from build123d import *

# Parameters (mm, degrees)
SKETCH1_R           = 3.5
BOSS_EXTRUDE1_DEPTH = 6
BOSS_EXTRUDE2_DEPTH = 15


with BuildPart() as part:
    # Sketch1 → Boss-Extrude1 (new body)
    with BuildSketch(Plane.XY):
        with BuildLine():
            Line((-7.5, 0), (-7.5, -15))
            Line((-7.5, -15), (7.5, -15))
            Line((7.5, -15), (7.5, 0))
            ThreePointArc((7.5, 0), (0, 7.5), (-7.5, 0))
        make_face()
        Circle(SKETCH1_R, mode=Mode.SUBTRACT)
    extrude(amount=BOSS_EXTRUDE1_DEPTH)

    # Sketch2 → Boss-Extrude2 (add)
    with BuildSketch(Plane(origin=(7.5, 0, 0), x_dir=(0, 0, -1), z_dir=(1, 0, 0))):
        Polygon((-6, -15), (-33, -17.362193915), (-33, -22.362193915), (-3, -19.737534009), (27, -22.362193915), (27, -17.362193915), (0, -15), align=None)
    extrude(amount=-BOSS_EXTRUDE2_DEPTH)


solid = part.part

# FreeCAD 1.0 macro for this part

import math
import FreeCAD as App
import Part
import Sketcher

V = App.Vector
Q = App.Units.Quantity


def add_polygon(sketch, points):
    """Adds a closed chain of lines whose ends are joined by coincident constraints."""
    first, n = sketch.GeometryCount, len(points)
    for a, b in zip(points, points[1:] + points[:1]):
        sketch.addGeometry(Part.LineSegment(App.Vector(*a, 0), App.Vector(*b, 0)), False)
    for i in range(n):
        sketch.addConstraint(Sketcher.Constraint("Coincident", first + i, 2, first + (i + 1) % n, 1))

doc = App.newDocument("Part")
body = doc.addObject("PartDesign::Body", "Body")

# Sketch on XY plane
sketch1 = body.newObject("Sketcher::SketchObject", "Sketch")
sketch1.AttachmentSupport = (doc.getObject("XY_Plane"), [""])
sketch1.MapMode = "FlatFace"
sketch1.addGeometry([
    Part.LineSegment(V(-7.5, 0, 0), V(-7.5, -15, 0)),  # 0
    Part.LineSegment(V(-7.5, -15, 0), V(7.5, -15, 0)),  # 1
    Part.LineSegment(V(7.5, -15, 0), V(7.5, 0, 0)),  # 2
    Part.ArcOfCircle(Part.Circle(V(0, 0, 0), V(0, 0, 1), 7.5), math.radians(0), math.radians(180)),  # 3
    Part.Circle(V(0, 0, 0), V(0, 0, 1), 3.5),  # 4
], False)
sketch1.addConstraint([
    Sketcher.Constraint("Coincident", 0, 2, 1, 1),
    Sketcher.Constraint("Coincident", 1, 2, 2, 1),
    Sketcher.Constraint("Tangent", 2, 2, 3, 1),
    Sketcher.Constraint("Tangent", 3, 2, 0, 1),
    Sketcher.Constraint("Vertical", 0),
    Sketcher.Constraint("Horizontal", 1),
    Sketcher.Constraint("Vertical", 2),
    Sketcher.Constraint("Coincident", 3, 3, -1, 1),
    Sketcher.Constraint("Coincident", 4, 3, -1, 1),
    Sketcher.Constraint("Equal", 1, 0),
    Sketcher.Constraint("Diameter", 4, 7.0),
    Sketcher.Constraint("Radius", 3, 7.5),
])
pad1 = body.newObject("PartDesign::Pad", "Pad")
pad1.Profile = sketch1
pad1.Length = 6

# Sketch on YZ plane
sketch2 = body.newObject("Sketcher::SketchObject", "Sketch001")
sketch2.AttachmentSupport = (doc.getObject("YZ_Plane"), [""])
sketch2.MapMode = "FlatFace"
sketch2.AttachmentOffset = App.Placement(V(0, 0, 7.5), App.Rotation())
add_polygon(sketch2, [(-15, 6), (-17.362194, 33), (-22.362194, 33), (-19.737534, 3), (-22.362194, -27), (-17.362194, -27), (-15, 0)])  # lines 0-6
sketch2.addConstraint([
    Sketcher.Constraint("Horizontal", 1),
    Sketcher.Constraint("Horizontal", 4),
    Sketcher.Constraint("Vertical", 6),
    Sketcher.Constraint("PointOnObject", 5, 2, -1),
    Sketcher.Constraint("Parallel", 0, 2),
    Sketcher.Constraint("Parallel", 3, 5),
    Sketcher.Constraint("Vertical", 1, 2, 3, 2),
    Sketcher.Constraint("Vertical", 0, 2, 4, 2),
    Sketcher.Constraint("Equal", 2, 3),
    Sketcher.Constraint("DistanceX", 1, 2, 1, 1, 5.0),
    Sketcher.Constraint("DistanceY", 6, 1, 6, 2, 6.0),
    Sketcher.Constraint("Angle", 0, Q("95 deg")),
    Sketcher.Constraint("DistanceY", -1, 1, 0, 2, 33.0),
    Sketcher.Constraint("DistanceX", 5, 2, -1, 1, 15.0),
])
pad2 = body.newObject("PartDesign::Pad", "Pad001")
pad2.Profile = sketch2
pad2.Length = 15
pad2.Reversed = True

doc.recompute()
